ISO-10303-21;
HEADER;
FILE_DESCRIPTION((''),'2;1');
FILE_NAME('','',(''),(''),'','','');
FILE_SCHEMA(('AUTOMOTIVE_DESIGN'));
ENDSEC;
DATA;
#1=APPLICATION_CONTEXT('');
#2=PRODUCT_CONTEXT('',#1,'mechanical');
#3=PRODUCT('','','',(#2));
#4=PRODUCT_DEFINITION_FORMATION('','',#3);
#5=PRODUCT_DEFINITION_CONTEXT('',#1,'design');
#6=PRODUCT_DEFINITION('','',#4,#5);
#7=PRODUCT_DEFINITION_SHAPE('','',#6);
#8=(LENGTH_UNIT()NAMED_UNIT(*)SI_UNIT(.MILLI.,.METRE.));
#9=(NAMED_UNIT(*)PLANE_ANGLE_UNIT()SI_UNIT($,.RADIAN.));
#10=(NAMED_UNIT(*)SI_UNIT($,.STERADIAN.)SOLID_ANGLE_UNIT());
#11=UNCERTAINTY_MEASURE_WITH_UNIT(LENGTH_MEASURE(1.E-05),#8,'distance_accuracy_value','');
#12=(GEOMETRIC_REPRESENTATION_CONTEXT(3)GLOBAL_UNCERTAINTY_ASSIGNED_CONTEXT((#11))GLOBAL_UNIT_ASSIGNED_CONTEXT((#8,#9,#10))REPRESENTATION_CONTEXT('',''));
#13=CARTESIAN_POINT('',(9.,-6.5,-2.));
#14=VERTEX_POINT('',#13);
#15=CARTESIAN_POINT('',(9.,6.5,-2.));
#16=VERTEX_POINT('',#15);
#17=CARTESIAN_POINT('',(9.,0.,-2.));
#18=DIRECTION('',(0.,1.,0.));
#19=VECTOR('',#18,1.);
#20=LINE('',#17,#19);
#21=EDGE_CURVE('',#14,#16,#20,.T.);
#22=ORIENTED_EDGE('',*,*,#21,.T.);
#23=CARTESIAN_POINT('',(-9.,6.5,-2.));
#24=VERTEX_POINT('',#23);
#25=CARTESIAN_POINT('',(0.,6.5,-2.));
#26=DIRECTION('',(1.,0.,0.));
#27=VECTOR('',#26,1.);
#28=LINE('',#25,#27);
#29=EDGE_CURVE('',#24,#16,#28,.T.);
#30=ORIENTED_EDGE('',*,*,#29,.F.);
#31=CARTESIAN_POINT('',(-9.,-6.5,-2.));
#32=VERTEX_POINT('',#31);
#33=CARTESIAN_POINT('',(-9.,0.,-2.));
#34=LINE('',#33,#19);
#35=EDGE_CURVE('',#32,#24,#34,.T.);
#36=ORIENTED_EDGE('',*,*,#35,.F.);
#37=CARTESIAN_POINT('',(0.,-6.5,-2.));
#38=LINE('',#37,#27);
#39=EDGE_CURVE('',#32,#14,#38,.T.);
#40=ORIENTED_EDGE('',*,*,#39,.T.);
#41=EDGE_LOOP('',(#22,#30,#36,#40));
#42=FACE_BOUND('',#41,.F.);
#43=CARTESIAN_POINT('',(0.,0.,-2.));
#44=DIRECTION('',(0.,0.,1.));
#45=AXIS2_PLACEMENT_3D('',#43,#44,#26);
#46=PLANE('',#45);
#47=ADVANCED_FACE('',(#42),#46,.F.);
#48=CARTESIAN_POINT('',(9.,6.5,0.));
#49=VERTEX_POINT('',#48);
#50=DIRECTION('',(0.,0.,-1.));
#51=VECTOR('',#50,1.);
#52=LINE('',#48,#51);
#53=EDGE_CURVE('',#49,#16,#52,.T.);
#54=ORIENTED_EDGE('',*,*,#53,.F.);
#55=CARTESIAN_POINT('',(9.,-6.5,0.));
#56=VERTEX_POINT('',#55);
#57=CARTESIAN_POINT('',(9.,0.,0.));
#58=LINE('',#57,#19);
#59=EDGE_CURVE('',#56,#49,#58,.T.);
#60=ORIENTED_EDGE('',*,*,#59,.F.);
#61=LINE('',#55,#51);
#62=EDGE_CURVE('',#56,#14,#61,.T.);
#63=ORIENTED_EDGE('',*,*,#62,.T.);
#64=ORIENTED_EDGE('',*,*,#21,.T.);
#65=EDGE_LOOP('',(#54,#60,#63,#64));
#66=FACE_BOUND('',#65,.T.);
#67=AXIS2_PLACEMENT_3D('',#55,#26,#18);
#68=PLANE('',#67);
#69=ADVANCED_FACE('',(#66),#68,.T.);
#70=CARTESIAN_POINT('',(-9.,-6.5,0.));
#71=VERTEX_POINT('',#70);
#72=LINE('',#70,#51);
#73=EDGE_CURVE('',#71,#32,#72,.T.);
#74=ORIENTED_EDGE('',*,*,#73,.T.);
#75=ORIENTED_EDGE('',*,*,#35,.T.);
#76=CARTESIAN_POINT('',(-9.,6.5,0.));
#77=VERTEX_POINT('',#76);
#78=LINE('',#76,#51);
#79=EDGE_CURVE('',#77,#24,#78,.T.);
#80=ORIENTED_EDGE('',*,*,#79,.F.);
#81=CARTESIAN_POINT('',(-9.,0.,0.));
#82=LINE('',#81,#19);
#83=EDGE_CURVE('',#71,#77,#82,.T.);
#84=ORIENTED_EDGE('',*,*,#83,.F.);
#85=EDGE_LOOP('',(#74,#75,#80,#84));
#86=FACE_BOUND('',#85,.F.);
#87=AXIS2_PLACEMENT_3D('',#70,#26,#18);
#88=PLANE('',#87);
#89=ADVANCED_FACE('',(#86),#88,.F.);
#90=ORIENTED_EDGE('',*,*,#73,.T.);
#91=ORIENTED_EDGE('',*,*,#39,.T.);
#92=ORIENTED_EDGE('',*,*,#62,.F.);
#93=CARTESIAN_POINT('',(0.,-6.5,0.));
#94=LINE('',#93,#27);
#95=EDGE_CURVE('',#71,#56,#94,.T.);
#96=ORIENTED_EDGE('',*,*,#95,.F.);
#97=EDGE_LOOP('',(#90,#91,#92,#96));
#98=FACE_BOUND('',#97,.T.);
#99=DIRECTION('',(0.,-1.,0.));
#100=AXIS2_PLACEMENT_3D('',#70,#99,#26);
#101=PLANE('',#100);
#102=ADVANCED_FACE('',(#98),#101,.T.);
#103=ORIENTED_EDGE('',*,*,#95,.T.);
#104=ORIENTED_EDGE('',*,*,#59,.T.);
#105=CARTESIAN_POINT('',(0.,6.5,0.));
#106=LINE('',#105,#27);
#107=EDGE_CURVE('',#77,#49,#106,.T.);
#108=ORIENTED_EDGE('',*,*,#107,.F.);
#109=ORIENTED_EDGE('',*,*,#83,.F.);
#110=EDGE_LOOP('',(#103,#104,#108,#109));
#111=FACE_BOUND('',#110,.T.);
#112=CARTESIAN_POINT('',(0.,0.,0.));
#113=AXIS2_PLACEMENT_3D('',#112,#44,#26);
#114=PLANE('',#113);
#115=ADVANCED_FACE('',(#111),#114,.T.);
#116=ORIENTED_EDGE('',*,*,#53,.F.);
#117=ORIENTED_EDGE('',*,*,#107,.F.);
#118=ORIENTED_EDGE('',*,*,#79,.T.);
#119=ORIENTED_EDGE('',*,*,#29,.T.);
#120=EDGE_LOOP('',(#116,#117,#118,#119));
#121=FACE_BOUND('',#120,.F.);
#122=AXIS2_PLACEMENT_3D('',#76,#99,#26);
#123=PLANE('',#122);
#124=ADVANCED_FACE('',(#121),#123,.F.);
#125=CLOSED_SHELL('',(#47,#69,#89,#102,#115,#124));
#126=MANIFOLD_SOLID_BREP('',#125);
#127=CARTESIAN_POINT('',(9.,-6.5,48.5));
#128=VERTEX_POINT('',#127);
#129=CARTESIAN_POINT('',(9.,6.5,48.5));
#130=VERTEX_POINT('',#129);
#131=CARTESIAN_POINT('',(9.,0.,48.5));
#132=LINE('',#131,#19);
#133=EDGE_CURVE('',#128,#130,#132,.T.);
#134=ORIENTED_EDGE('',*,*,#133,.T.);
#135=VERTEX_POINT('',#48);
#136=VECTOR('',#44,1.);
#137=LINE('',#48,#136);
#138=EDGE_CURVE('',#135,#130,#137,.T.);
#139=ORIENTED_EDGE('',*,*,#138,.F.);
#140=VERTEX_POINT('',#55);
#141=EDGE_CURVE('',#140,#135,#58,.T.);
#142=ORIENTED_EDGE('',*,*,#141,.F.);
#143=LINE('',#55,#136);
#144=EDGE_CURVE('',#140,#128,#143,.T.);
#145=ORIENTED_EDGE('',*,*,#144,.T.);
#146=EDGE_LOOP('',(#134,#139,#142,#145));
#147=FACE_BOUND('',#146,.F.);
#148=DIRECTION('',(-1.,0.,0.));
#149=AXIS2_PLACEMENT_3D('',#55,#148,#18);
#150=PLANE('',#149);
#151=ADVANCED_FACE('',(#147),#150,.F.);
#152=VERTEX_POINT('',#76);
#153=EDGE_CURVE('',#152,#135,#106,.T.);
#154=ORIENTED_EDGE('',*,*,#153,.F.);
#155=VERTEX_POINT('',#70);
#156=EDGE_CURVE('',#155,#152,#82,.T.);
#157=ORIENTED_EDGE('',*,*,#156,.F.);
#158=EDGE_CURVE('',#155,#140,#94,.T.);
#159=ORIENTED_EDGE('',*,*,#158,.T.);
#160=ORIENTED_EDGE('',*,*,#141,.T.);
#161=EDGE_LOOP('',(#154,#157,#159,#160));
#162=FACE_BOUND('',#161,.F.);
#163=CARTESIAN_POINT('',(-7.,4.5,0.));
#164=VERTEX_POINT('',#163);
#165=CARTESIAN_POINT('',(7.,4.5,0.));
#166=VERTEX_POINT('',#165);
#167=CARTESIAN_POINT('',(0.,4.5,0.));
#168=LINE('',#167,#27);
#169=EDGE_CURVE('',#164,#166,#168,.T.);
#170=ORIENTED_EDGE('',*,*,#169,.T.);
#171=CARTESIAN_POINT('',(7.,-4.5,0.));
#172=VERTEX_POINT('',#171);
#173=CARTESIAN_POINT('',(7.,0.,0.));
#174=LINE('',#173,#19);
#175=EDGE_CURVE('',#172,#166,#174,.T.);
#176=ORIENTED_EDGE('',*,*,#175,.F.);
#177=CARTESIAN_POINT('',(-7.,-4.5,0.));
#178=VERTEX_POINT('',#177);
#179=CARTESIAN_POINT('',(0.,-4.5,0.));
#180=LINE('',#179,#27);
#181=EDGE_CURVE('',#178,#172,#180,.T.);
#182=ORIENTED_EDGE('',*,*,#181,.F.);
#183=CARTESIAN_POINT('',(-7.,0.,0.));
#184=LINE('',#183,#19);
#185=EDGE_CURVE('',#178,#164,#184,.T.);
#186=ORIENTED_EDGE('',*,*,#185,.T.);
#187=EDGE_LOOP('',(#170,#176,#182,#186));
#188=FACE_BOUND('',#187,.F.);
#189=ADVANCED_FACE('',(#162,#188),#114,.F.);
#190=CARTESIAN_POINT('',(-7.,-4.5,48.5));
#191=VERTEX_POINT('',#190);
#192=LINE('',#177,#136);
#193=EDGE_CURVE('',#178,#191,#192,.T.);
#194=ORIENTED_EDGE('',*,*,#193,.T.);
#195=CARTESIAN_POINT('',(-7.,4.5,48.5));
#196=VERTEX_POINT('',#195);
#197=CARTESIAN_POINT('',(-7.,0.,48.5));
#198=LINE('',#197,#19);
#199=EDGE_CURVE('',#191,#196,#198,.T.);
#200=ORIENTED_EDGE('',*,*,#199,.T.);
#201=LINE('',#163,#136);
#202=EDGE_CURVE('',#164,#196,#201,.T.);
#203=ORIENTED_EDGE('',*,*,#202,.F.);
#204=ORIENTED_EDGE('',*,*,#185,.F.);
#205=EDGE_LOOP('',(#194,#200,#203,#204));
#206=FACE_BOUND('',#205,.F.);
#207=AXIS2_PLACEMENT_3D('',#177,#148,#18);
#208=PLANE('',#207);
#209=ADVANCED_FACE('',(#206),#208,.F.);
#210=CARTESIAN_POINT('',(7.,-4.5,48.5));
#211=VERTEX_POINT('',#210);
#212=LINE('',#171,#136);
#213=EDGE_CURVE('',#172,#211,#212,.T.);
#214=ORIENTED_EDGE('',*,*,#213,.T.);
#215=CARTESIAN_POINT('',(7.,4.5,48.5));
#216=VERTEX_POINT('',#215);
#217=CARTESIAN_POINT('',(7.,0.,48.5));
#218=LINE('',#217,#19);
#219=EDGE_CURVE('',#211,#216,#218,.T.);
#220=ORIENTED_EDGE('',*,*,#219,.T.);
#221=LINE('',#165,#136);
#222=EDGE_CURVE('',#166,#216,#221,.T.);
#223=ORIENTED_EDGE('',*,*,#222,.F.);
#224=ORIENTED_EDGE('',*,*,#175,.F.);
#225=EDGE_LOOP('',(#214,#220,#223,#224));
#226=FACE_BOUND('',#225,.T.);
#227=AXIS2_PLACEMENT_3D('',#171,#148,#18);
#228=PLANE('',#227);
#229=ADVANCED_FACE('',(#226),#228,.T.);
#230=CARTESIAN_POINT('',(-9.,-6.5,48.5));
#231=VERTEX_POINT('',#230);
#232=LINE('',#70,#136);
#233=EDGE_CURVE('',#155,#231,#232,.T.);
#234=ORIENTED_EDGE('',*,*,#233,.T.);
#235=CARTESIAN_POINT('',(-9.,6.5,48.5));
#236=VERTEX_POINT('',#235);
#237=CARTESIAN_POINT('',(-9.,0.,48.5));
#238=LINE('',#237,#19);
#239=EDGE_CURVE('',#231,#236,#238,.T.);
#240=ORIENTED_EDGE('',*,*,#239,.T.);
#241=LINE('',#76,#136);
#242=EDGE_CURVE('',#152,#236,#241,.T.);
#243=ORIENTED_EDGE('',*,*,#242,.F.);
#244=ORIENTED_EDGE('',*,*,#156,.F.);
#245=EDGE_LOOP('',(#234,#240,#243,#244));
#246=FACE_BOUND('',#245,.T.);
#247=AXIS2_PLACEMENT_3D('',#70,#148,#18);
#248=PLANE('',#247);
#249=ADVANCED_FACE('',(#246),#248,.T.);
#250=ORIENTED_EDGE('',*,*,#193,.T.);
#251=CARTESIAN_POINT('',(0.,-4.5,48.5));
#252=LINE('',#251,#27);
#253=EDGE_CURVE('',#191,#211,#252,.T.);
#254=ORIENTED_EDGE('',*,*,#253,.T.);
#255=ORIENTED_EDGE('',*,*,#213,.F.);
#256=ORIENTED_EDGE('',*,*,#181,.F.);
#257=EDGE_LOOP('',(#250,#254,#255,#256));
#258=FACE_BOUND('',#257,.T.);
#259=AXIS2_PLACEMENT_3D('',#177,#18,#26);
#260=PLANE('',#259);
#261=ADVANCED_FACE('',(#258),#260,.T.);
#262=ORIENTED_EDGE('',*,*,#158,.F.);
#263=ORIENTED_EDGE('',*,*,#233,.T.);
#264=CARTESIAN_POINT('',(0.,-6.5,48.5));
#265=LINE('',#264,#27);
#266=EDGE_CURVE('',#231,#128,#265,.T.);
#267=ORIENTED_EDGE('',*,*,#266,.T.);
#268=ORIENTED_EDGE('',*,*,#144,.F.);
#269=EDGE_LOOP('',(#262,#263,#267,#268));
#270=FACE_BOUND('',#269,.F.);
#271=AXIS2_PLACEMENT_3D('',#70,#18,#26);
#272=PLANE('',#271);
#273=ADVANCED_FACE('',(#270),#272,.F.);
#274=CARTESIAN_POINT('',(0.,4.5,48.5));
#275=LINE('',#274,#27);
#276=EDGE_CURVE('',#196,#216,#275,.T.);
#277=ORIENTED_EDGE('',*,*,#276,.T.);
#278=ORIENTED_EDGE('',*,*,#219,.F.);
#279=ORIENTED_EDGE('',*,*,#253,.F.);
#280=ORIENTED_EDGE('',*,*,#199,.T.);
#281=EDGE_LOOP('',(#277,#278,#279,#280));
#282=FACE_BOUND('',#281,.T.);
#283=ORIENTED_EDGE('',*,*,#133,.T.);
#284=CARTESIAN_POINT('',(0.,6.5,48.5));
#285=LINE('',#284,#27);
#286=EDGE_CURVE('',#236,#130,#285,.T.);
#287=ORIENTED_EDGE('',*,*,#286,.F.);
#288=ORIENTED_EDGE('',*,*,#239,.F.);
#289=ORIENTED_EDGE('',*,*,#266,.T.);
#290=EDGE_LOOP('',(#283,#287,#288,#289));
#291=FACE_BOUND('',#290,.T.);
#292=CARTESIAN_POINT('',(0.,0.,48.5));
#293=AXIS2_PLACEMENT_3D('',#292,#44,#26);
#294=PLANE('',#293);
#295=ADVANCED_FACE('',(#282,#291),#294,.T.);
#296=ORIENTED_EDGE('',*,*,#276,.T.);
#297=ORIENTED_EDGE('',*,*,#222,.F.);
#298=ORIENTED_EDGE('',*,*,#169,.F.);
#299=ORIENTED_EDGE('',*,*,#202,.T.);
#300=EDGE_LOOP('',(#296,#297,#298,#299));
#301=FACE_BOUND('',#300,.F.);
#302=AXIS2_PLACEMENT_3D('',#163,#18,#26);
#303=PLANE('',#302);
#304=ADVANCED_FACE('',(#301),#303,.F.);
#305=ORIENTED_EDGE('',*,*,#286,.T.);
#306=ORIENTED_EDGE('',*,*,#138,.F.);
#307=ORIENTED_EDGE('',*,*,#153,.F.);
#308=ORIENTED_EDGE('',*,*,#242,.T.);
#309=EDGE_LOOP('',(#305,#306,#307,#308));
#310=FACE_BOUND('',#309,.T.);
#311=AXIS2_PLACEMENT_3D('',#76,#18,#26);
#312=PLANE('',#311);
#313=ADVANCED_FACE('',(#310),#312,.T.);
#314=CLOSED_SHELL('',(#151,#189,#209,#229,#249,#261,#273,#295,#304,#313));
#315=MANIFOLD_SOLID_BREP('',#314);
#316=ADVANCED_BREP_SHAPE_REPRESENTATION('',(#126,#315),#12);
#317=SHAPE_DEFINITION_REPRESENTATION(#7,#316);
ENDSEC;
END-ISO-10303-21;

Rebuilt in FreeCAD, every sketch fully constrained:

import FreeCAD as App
import Part
import Sketcher

V = App.Vector

doc = App.newDocument("Part")
body = doc.addObject("PartDesign::Body", "Body")

sketch1 = doc.addObject("Sketcher::SketchObject", "Sketch")
body.addObject(sketch1)
sketch1.AttachmentSupport = (doc.XY_Plane, [""])
sketch1.MapMode = "FlatFace"
sketch1.addGeometry(Part.LineSegment(V(-9, 6, 0), V(-9, -6, 0)), False)
sketch1.addGeometry(Part.LineSegment(V(-9, -6, 0), V(9, -6, 0)), False)
sketch1.addGeometry(Part.LineSegment(V(9, -6, 0), V(9, 6, 0)), False)
sketch1.addGeometry(Part.LineSegment(V(9, 6, 0), V(-9, 6, 0)), False)
sketch1.addGeometry(Part.LineSegment(V(7, -4, 0), V(-7, -4, 0)), False)
sketch1.addGeometry(Part.LineSegment(V(-7, -4, 0), V(-7, 4, 0)), False)
sketch1.addGeometry(Part.LineSegment(V(-7, 4, 0), V(7, 4, 0)), False)
sketch1.addGeometry(Part.LineSegment(V(7, 4, 0), V(7, -4, 0)), False)
sketch1.addConstraint(Sketcher.Constraint("Coincident", 0, 2, 1, 1))
sketch1.addConstraint(Sketcher.Constraint("Coincident", 1, 2, 2, 1))
sketch1.addConstraint(Sketcher.Constraint("Coincident", 2, 2, 3, 1))
sketch1.addConstraint(Sketcher.Constraint("Coincident", 3, 2, 0, 1))
sketch1.addConstraint(Sketcher.Constraint("Coincident", 4, 2, 5, 1))
sketch1.addConstraint(Sketcher.Constraint("Coincident", 5, 2, 6, 1))
sketch1.addConstraint(Sketcher.Constraint("Coincident", 6, 2, 7, 1))
sketch1.addConstraint(Sketcher.Constraint("Coincident", 7, 2, 4, 1))
sketch1.addConstraint(Sketcher.Constraint("Vertical", 0))
sketch1.addConstraint(Sketcher.Constraint("Horizontal", 1))
sketch1.addConstraint(Sketcher.Constraint("Vertical", 2))
sketch1.addConstraint(Sketcher.Constraint("Horizontal", 3))
sketch1.addConstraint(Sketcher.Constraint("Horizontal", 4))
sketch1.addConstraint(Sketcher.Constraint("Vertical", 5))
sketch1.addConstraint(Sketcher.Constraint("Horizontal", 6))
sketch1.addConstraint(Sketcher.Constraint("Vertical", 7))
sketch1.addConstraint(Sketcher.Constraint("Symmetric", 0, 2, 2, 2, -1, 1))
sketch1.addConstraint(Sketcher.Constraint("Symmetric", 4, 2, 6, 2, -1, 1))
sketch1.addConstraint(Sketcher.Constraint("DistanceX", 1, 1, 1, 2, 18.0))
sketch1.addConstraint(Sketcher.Constraint("DistanceX", 4, 2, 4, 1, 14.0))
sketch1.addConstraint(Sketcher.Constraint("DistanceY", 0, 2, 0, 1, 13.0))
sketch1.addConstraint(Sketcher.Constraint("DistanceY", 5, 1, 5, 2, 9.0))
pad1 = doc.addObject("PartDesign::Pad", "Pad")
body.addObject(pad1)
pad1.Profile = sketch1
pad1.Length = 48.5
body2 = doc.addObject("PartDesign::Body", "Body001")

sketch2 = doc.addObject("Sketcher::SketchObject", "Sketch001")
body2.addObject(sketch2)
sketch2.AttachmentSupport = (doc.getObject("XY_Plane001"), [""])
sketch2.MapMode = "FlatFace"
sketch2.addGeometry(Part.LineSegment(V(-9, 6, 0), V(-9, -6, 0)), False)
sketch2.addGeometry(Part.LineSegment(V(-9, -6, 0), V(9, -6, 0)), False)
sketch2.addGeometry(Part.LineSegment(V(9, -6, 0), V(9, 6, 0)), False)
sketch2.addGeometry(Part.LineSegment(V(9, 6, 0), V(-9, 6, 0)), False)
sketch2.addConstraint(Sketcher.Constraint("Coincident", 0, 2, 1, 1))
sketch2.addConstraint(Sketcher.Constraint("Coincident", 1, 2, 2, 1))
sketch2.addConstraint(Sketcher.Constraint("Coincident", 2, 2, 3, 1))
sketch2.addConstraint(Sketcher.Constraint("Coincident", 3, 2, 0, 1))
sketch2.addConstraint(Sketcher.Constraint("Vertical", 0))
sketch2.addConstraint(Sketcher.Constraint("Horizontal", 1))
sketch2.addConstraint(Sketcher.Constraint("Vertical", 2))
sketch2.addConstraint(Sketcher.Constraint("Horizontal", 3))
sketch2.addConstraint(Sketcher.Constraint("Symmetric", 0, 2, 2, 2, -1, 1))
sketch2.addConstraint(Sketcher.Constraint("DistanceX", 1, 1, 1, 2, 18.0))
sketch2.addConstraint(Sketcher.Constraint("DistanceY", 0, 2, 0, 1, 13.0))
pad2 = doc.addObject("PartDesign::Pad", "Pad001")
body2.addObject(pad2)
pad2.Profile = sketch2
pad2.Length = 2
pad2.Reversed = True

doc.recompute()
